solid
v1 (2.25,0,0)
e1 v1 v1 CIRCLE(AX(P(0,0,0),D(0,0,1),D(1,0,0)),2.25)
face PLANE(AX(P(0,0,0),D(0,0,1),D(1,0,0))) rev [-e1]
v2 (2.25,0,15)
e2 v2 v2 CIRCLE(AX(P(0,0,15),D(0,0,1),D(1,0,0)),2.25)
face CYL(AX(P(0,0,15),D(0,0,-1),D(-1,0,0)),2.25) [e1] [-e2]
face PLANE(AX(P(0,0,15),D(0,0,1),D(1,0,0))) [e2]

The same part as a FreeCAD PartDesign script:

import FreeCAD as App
import Part
import Sketcher

doc = App.newDocument("Part")
body = doc.addObject("PartDesign::Body", "Body")

sketch1 = body.newObject("Sketcher::SketchObject", "Sketch")
sketch1.AttachmentSupport = (doc.getObject("XY_Plane"), [""])
sketch1.MapMode = "FlatFace"
sketch1.addGeometry(Part.Circle(App.Vector(0, 0, 0), App.Vector(0, 0, 1), 2.2), False)
sketch1.addConstraint(Sketcher.Constraint("Coincident", 0, 3, -1, 1))
sketch1.addConstraint(Sketcher.Constraint("Diameter", 0, 4.5))
pad1 = body.newObject("PartDesign::Pad", "Pad")
pad1.Profile = sketch1
pad1.Length = 15

doc.recompute()
